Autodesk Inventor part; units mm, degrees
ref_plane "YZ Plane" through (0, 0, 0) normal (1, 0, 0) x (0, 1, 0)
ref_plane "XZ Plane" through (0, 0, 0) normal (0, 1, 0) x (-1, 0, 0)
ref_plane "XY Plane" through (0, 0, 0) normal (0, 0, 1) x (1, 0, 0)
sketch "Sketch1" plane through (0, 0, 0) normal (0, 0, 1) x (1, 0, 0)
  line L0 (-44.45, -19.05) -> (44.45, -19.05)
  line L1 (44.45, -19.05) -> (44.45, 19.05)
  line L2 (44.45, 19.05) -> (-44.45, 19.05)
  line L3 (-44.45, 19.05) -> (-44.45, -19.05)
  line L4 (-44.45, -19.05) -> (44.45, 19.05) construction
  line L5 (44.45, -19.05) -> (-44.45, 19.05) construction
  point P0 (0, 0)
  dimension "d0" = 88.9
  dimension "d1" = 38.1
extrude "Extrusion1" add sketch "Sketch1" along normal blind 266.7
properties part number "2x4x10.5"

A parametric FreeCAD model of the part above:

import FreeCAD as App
import Part
import Sketcher
from FreeCAD import Vector
Q = App.Units.Quantity


def add_polygon(sketch, points):
    """Adds a closed chain of lines whose ends are joined by coincident constraints."""
    first, n = sketch.GeometryCount, len(points)
    for a, b in zip(points, points[1:] + points[:1]):
        sketch.addGeometry(Part.LineSegment(App.Vector(*a, 0), App.Vector(*b, 0)), False)
    for i in range(n):
        sketch.addConstraint(Sketcher.Constraint("Coincident", first + i, 2, first + (i + 1) % n, 1))

doc = App.newDocument("Part")
body = doc.addObject("PartDesign::Body", "Body")

# Sketch on XY plane
sketch1 = doc.addObject("Sketcher::SketchObject", "Sketch")
body.addObject(sketch1)
sketch1.AttachmentSupport = (doc.XY_Plane, [""])
sketch1.MapMode = "FlatFace"
add_polygon(sketch1, [(-44.45, 19.05), (-44.45, -19.05), (44.45, -19.05), (44.45, 19.05)])  # lines 0-3
sketch1.addConstraint([
    Sketcher.Constraint("Vertical", 0),
    Sketcher.Constraint("Horizontal", 1),
    Sketcher.Constraint("Vertical", 2),
    Sketcher.Constraint("Horizontal", 3),
    Sketcher.Constraint("Symmetric", 0, 2, 2, 2, -1, 1),
    Sketcher.Constraint("DistanceX", 1, 1, 1, 2, Q("3.5 in")),
    Sketcher.Constraint("DistanceY", 0, 2, 0, 1, Q("1.5 in")),
])
pad1 = doc.addObject("PartDesign::Pad", "Pad")
body.addObject(pad1)
pad1.Profile = sketch1
pad1.Length = Q("10.5 in")

doc.recompute()
